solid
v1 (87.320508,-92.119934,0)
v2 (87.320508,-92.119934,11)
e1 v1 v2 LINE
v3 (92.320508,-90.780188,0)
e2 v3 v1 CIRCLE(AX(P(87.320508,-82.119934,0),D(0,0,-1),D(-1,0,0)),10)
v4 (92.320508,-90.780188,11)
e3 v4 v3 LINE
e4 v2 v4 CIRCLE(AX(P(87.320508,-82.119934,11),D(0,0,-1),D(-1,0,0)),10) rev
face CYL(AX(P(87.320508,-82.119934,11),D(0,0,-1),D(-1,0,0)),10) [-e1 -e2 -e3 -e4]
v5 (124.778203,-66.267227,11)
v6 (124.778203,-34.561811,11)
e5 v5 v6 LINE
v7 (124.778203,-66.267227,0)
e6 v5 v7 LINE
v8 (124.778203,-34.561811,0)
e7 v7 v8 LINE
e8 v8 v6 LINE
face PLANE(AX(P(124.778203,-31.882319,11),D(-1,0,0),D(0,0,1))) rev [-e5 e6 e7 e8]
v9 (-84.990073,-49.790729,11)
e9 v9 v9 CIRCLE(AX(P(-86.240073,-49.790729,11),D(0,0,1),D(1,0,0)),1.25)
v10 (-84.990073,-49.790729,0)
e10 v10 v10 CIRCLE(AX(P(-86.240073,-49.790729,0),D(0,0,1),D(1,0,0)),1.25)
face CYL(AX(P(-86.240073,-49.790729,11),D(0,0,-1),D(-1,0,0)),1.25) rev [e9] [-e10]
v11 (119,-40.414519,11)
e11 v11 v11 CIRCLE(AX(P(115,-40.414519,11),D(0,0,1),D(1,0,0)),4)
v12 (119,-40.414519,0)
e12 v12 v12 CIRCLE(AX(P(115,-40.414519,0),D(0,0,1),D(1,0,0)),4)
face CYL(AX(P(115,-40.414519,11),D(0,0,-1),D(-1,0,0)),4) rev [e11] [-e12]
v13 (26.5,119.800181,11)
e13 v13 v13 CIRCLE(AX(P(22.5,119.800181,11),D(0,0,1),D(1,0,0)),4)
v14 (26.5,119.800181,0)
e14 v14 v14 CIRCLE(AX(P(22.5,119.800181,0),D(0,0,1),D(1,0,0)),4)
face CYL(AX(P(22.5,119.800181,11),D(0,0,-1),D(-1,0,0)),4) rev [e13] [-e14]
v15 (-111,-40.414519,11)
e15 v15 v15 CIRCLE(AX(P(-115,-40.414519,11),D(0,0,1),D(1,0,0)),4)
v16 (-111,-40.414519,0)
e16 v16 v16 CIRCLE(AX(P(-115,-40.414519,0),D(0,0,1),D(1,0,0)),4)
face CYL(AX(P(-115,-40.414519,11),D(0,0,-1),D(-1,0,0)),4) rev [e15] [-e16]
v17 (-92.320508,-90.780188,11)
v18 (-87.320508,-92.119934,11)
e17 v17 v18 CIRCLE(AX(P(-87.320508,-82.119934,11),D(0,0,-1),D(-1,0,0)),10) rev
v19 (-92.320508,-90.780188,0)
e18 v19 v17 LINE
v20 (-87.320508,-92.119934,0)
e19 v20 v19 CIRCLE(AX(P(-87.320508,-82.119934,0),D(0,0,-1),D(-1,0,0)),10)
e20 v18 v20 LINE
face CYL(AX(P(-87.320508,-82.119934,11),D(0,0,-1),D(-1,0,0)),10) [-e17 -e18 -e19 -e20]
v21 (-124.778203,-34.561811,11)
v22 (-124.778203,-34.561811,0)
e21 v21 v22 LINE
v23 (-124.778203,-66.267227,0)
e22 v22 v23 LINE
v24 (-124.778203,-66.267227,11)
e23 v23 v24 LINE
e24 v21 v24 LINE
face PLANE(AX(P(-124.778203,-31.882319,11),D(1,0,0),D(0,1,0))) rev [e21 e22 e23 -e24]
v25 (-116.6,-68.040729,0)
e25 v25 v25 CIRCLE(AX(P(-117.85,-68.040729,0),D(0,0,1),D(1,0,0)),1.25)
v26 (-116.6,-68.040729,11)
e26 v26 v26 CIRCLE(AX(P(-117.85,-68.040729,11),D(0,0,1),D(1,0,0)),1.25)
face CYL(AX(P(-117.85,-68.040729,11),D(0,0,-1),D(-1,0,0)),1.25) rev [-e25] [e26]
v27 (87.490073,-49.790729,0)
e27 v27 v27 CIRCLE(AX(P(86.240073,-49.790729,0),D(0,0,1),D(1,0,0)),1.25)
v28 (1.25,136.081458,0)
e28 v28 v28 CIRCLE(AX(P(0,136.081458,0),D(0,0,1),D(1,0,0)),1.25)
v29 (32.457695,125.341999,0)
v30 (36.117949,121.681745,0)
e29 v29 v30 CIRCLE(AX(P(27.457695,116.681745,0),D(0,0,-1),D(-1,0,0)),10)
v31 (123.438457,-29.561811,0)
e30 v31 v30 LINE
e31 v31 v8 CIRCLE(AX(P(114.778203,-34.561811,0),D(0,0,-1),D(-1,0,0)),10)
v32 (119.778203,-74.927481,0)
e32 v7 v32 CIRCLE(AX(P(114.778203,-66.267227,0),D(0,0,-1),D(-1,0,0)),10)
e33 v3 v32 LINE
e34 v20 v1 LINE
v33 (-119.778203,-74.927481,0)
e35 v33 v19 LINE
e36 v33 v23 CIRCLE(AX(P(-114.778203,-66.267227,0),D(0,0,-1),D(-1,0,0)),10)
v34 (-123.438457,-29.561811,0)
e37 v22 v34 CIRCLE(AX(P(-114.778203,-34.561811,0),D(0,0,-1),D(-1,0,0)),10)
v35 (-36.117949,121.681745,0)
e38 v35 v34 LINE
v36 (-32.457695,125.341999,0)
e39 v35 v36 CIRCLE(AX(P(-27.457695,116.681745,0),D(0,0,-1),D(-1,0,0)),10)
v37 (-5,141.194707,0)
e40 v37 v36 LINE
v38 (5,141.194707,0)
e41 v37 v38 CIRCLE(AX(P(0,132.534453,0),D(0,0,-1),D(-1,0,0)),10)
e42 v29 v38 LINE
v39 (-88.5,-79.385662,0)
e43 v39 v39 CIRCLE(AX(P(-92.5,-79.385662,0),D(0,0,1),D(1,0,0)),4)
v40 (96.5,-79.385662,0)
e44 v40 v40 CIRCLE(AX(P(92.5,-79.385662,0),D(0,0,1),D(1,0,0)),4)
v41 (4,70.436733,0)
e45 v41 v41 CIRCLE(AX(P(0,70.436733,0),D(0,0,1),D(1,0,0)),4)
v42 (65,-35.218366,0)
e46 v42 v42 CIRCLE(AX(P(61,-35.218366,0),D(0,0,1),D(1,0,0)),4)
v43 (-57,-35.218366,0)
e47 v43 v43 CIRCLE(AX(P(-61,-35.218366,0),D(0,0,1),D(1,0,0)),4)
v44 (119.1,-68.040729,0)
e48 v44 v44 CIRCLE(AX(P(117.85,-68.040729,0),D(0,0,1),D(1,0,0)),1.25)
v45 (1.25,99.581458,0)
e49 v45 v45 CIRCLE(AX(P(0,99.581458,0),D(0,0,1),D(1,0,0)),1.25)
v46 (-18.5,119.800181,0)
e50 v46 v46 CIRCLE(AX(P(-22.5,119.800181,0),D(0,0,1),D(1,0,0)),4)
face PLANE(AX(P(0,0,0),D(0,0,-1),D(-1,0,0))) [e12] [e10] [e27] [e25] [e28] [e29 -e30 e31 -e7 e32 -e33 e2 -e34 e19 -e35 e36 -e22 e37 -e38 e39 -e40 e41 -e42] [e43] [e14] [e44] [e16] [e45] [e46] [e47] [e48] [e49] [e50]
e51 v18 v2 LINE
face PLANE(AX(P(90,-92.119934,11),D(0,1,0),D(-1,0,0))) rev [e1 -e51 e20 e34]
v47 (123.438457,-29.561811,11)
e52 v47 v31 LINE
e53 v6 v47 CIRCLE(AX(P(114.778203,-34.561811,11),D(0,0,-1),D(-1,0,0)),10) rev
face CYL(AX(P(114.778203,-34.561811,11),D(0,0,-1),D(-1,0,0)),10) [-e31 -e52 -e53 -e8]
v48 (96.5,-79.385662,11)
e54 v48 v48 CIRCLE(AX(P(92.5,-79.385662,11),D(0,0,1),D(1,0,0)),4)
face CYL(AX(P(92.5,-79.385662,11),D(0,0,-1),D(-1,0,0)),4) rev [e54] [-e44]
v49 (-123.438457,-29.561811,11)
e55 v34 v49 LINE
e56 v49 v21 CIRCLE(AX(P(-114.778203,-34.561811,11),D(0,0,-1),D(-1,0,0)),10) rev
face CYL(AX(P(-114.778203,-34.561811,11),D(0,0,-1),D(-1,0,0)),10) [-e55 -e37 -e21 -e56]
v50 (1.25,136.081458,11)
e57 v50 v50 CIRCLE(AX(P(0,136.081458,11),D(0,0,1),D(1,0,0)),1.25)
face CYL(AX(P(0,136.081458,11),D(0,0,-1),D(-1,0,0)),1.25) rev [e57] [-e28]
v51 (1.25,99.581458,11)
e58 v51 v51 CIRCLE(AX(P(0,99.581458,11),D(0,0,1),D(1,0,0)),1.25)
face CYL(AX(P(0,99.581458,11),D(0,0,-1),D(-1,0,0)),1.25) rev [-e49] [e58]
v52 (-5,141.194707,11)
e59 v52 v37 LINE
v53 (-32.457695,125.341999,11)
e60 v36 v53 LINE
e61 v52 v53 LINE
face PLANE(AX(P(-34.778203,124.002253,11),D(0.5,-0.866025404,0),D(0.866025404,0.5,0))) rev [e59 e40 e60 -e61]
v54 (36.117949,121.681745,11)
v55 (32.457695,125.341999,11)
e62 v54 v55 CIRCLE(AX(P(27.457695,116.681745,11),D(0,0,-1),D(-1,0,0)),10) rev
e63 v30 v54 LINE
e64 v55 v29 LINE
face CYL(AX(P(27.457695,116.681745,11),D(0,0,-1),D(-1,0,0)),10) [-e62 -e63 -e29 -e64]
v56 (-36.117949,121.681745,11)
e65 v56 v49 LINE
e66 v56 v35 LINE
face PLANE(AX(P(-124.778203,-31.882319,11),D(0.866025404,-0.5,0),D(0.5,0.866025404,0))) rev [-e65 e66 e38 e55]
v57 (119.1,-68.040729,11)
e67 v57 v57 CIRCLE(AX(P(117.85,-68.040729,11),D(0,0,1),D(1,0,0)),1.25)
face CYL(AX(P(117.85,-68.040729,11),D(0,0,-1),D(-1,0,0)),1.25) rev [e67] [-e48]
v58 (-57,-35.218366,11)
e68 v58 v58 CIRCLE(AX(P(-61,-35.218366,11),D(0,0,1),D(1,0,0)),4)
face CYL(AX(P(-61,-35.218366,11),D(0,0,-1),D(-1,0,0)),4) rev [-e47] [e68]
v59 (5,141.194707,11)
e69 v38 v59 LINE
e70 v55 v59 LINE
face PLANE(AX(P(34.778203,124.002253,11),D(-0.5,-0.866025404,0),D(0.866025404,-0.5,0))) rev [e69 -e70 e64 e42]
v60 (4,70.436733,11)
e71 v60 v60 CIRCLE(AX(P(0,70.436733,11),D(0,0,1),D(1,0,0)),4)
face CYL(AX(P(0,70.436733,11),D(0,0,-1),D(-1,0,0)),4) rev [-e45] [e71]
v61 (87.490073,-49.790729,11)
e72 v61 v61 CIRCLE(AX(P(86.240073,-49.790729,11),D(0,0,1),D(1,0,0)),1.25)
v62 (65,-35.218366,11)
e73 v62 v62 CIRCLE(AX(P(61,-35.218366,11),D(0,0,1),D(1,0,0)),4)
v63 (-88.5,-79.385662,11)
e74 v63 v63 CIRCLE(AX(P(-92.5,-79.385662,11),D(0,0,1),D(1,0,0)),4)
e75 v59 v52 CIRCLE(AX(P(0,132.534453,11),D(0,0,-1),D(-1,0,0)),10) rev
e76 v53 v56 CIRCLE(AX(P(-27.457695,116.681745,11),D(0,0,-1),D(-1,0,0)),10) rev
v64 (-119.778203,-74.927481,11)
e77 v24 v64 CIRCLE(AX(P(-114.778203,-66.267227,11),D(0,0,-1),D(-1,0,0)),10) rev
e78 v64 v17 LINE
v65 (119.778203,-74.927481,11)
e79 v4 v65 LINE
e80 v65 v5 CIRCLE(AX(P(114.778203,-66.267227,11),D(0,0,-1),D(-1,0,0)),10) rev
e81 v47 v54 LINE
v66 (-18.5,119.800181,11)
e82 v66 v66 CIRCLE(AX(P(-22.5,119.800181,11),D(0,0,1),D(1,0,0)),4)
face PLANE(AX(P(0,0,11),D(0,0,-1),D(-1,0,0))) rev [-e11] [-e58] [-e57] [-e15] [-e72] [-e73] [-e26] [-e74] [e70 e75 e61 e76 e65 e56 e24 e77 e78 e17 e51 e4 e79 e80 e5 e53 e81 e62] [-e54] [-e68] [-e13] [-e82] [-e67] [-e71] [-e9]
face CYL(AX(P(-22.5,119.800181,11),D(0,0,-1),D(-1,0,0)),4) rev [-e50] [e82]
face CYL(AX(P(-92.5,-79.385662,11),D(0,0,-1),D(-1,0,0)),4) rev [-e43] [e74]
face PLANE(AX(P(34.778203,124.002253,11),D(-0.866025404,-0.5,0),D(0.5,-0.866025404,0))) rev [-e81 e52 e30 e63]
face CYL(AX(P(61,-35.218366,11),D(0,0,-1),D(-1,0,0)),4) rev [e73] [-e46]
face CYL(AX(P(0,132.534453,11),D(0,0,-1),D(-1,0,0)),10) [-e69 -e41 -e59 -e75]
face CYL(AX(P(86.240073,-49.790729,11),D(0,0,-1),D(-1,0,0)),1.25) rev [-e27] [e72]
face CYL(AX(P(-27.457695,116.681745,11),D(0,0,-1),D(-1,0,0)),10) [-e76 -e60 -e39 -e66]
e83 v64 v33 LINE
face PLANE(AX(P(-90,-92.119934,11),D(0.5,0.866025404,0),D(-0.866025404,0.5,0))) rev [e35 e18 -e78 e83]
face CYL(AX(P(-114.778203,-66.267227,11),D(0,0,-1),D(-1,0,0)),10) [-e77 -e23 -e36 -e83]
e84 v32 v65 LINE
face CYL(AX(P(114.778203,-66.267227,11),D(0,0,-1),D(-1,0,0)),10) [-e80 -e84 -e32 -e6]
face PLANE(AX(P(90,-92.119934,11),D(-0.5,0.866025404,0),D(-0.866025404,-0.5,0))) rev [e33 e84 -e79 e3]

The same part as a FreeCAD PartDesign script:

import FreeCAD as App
import Part
import Sketcher

V = App.Vector
Q = App.Units.Quantity


def edges_at(feature, points):
    """Names of the edges that pass closest to the given points."""
    edges = feature.Shape.Edges
    near = lambda p: min(range(len(edges)), key=lambda i: edges[i].distToShape(Part.Vertex(*p))[0])
    return sorted({f"Edge{near(p) + 1}" for p in points})

doc = App.newDocument("Part")
body = doc.addObject("PartDesign::Body", "Body")

# Sketch on XY plane
sketch1 = doc.addObject("Sketcher::SketchObject", "Sketch")
body.addObject(sketch1)
sketch1.AttachmentSupport = (doc.XY_Plane, [""])
sketch1.MapMode = "FlatFace"
sketch1.addGeometry(Part.LineSegment(V(124.778203, -31.882319, 0), V(34.778203, 124.002253, 0)), False)
sketch1.addGeometry(Part.LineSegment(V(34.778203, 124.002253, 0), V(0, 144.081458, 0)), False)
sketch1.addGeometry(Part.LineSegment(V(0, 144.081458, 0), V(-34.778203, 124.002253, 0)), False)
sketch1.addGeometry(Part.LineSegment(V(-34.778203, 124.002253, 0), V(-124.778203, -31.882319, 0)), False)
sketch1.addGeometry(Part.LineSegment(V(-124.778203, -31.882319, 0), V(-124.778203, -72.040729, 0)), False)
sketch1.addGeometry(Part.LineSegment(V(-124.778203, -72.040729, 0), V(-90, -92.119934, 0)), False)
sketch1.addGeometry(Part.LineSegment(V(-90, -92.119934, 0), V(90, -92.119934, 0)), False)
sketch1.addGeometry(Part.LineSegment(V(90, -92.119934, 0), V(124.778203, -72.040729, 0)), False)
sketch1.addGeometry(Part.LineSegment(V(124.778203, -72.040729, 0), V(124.778203, -31.882319, 0)), False)
sketch1.addGeometry(Part.Circle(V(92.5, -79.385662, 0), V(0, 0, 1), 4), False)
sketch1.addGeometry(Part.Circle(V(117.85, -68.040729, 0), V(0, 0, 1), 1.25), False)
sketch1.addGeometry(Part.Circle(V(115, -40.414519, 0), V(0, 0, 1), 4), False)
sketch1.addGeometry(Part.Circle(V(86.240073, -49.790729, 0), V(0, 0, 1), 1.25), False)
sketch1.addGeometry(Part.Circle(V(61, -35.218366, 0), V(0, 0, 1), 4), False)
sketch1.addGeometry(Part.Circle(V(-92.5, -79.385662, 0), V(0, 0, 1), 4), False)
sketch1.addGeometry(Part.Circle(V(-117.85, -68.040729, 0), V(0, 0, 1), 1.25), False)
sketch1.addGeometry(Part.Circle(V(-86.240073, -49.790729, 0), V(0, 0, 1), 1.25), False)
sketch1.addGeometry(Part.Circle(V(-61, -35.218366, 0), V(0, 0, 1), 4), False)
sketch1.addGeometry(Part.Circle(V(-115, -40.414519, 0), V(0, 0, 1), 4), False)
sketch1.addGeometry(Part.Circle(V(0, 70.436733, 0), V(0, 0, 1), 4), False)
sketch1.addGeometry(Part.Circle(V(0, 99.581458, 0), V(0, 0, 1), 1.25), False)
sketch1.addGeometry(Part.Circle(V(22.5, 119.800181, 0), V(0, 0, 1), 4), False)
sketch1.addGeometry(Part.Circle(V(0, 136.081458, 0), V(0, 0, 1), 1.25), False)
sketch1.addGeometry(Part.Circle(V(-22.5, 119.800181, 0), V(0, 0, 1), 4), False)
sketch1.addConstraint(Sketcher.Constraint("Coincident", 0, 2, 1, 1))
sketch1.addConstraint(Sketcher.Constraint("Coincident", 1, 2, 2, 1))
sketch1.addConstraint(Sketcher.Constraint("Coincident", 2, 2, 3, 1))
sketch1.addConstraint(Sketcher.Constraint("Coincident", 3, 2, 4, 1))
sketch1.addConstraint(Sketcher.Constraint("Coincident", 4, 2, 5, 1))
sketch1.addConstraint(Sketcher.Constraint("Coincident", 5, 2, 6, 1))
sketch1.addConstraint(Sketcher.Constraint("Coincident", 6, 2, 7, 1))
sketch1.addConstraint(Sketcher.Constraint("Coincident", 7, 2, 8, 1))
sketch1.addConstraint(Sketcher.Constraint("Coincident", 8, 2, 0, 1))
sketch1.addConstraint(Sketcher.Constraint("Vertical", 4))
sketch1.addConstraint(Sketcher.Constraint("Horizontal", 6))
sketch1.addConstraint(Sketcher.Constraint("Vertical", 8))
sketch1.addConstraint(Sketcher.Constraint("Equal", 9, 11))
sketch1.addConstraint(Sketcher.Constraint("Equal", 10, 12))
sketch1.addConstraint(Sketcher.Constraint("Equal", 11, 13))
sketch1.addConstraint(Sketcher.Constraint("Equal", 13, 14))
sketch1.addConstraint(Sketcher.Constraint("Equal", 12, 15))
sketch1.addConstraint(Sketcher.Constraint("Equal", 15, 16))
sketch1.addConstraint(Sketcher.Constraint("Equal", 14, 17))
sketch1.addConstraint(Sketcher.Constraint("Equal", 17, 18))
sketch1.addConstraint(Sketcher.Constraint("Equal", 18, 19))
sketch1.addConstraint(Sketcher.Constraint("Equal", 16, 20))
sketch1.addConstraint(Sketcher.Constraint("Equal", 19, 21))
sketch1.addConstraint(Sketcher.Constraint("Equal", 20, 22))
sketch1.addConstraint(Sketcher.Constraint("Equal", 21, 23))
sketch1.addConstraint(Sketcher.Constraint("Symmetric", 9, 3, 14, 3, -2))
sketch1.addConstraint(Sketcher.Constraint("Symmetric", 10, 3, 15, 3, -2))
sketch1.addConstraint(Sketcher.Constraint("Symmetric", 12, 3, 16, 3, -2))
sketch1.addConstraint(Sketcher.Constraint("Symmetric", 13, 3, 17, 3, -2))
sketch1.addConstraint(Sketcher.Constraint("Symmetric", 11, 3, 18, 3, -2))
sketch1.addConstraint(Sketcher.Constraint("Symmetric", 21, 3, 23, 3, -2))
sketch1.addConstraint(Sketcher.Constraint("Symmetric", 0, 2, 2, 2, -2))
sketch1.addConstraint(Sketcher.Constraint("Symmetric", 4, 2, 7, 2, -2))
sketch1.addConstraint(Sketcher.Constraint("PointOnObject", 19, 3, -2))
sketch1.addConstraint(Sketcher.Constraint("PointOnObject", 20, 3, -2))
sketch1.addConstraint(Sketcher.Constraint("PointOnObject", 22, 3, -2))
sketch1.addConstraint(Sketcher.Constraint("PointOnObject", 1, 2, -2))
sketch1.addConstraint(Sketcher.Constraint("Perpendicular", 0, 2))
sketch1.addConstraint(Sketcher.Constraint("Perpendicular", 1, 3))
sketch1.addConstraint(Sketcher.Constraint("Perpendicular", 3, 5))
sketch1.addConstraint(Sketcher.Constraint("Parallel", 2, 7))
sketch1.addConstraint(Sketcher.Constraint("Equal", 2, 5))
sketch1.addConstraint(Sketcher.Constraint("Diameter", 9, 8.0))
sketch1.addConstraint(Sketcher.Constraint("Diameter", 10, 2.5))
sketch1.addConstraint(Sketcher.Constraint("DistanceX", 6, 1, 6, 2, 180.0))
sketch1.addConstraint(Sketcher.Constraint("Angle", 0, Q("120 deg")))
sketch1.addConstraint(Sketcher.Constraint("DistanceX", -1, 1, 11, 3, 115.0))
sketch1.addConstraint(Sketcher.Constraint("DistanceX", -1, 1, 13, 3, 61.0))
sketch1.addConstraint(Sketcher.Constraint("DistanceX", 14, 3, 9, 3, 185.0))
sketch1.addConstraint(Sketcher.Constraint("DistanceX", 23, 3, 21, 3, 45.0))
sketch1.addConstraint(Sketcher.Constraint("DistanceY", 22, 3, 1, 2, 8.0))
sketch1.addConstraint(Sketcher.Constraint("DistanceY", 4, 2, 15, 3, 4.0))
sketch1.addConstraint(Sketcher.Constraint("DistanceY", 20, 3, 22, 3, 36.5))
sketch1.addConstraint(Sketcher.Constraint("DistanceX", -1, 1, 10, 3, 117.85))
sketch1.addConstraint(Sketcher.Constraint("DistanceY", 10, 3, 12, 3, 18.25))
sketch1.addConstraint(Sketcher.Constraint("DistanceY", 4, 2, 4, 1, 40.15841))
sketch1.addConstraint(Sketcher.Constraint("DistanceY", 13, 3, 19, 3, 105.655099))
sketch1.addConstraint(Sketcher.Constraint("DistanceY", 18, 3, 3, 2, 8.5322))
sketch1.addConstraint(Sketcher.Constraint("Distance", 1, 40.15841))
sketch1.addConstraint(Sketcher.Constraint("DistanceY", 10, 3, -1, 1, 68.040729))
sketch1.addConstraint(Sketcher.Constraint("DistanceY", -1, 1, 21, 3, 119.800181))
sketch1.addConstraint(Sketcher.Constraint("DistanceY", 11, 3, 19, 3, 110.851252))
sketch1.addConstraint(Sketcher.Constraint("DistanceX", 3, 2, 16, 3, 38.53813))
sketch1.addConstraint(Sketcher.Constraint("DistanceY", 9, 3, -1, 1, 79.385662))
pad1 = doc.addObject("PartDesign::Pad", "Pad")
body.addObject(pad1)
pad1.Profile = sketch1
pad1.Length = 11
doc.recompute()

fillet = doc.addObject("PartDesign::Fillet", "Fillet")
body.addObject(fillet)
fillet.Base = (pad1, edges_at(pad1, [
    (34.778, 124.002, 5.5),
    (124.778, -31.882, 5.5),
    (124.778, -72.041, 5.5),
    (90, -92.12, 5.5),
    (-90, -92.12, 5.5),
    (-124.778, -72.041, 5.5),
    (-124.778, -31.882, 5.5),
    (-34.778, 124.002, 5.5),
    (0, 144.081, 5.5),
]))
fillet.Radius = 10

doc.recompute()
